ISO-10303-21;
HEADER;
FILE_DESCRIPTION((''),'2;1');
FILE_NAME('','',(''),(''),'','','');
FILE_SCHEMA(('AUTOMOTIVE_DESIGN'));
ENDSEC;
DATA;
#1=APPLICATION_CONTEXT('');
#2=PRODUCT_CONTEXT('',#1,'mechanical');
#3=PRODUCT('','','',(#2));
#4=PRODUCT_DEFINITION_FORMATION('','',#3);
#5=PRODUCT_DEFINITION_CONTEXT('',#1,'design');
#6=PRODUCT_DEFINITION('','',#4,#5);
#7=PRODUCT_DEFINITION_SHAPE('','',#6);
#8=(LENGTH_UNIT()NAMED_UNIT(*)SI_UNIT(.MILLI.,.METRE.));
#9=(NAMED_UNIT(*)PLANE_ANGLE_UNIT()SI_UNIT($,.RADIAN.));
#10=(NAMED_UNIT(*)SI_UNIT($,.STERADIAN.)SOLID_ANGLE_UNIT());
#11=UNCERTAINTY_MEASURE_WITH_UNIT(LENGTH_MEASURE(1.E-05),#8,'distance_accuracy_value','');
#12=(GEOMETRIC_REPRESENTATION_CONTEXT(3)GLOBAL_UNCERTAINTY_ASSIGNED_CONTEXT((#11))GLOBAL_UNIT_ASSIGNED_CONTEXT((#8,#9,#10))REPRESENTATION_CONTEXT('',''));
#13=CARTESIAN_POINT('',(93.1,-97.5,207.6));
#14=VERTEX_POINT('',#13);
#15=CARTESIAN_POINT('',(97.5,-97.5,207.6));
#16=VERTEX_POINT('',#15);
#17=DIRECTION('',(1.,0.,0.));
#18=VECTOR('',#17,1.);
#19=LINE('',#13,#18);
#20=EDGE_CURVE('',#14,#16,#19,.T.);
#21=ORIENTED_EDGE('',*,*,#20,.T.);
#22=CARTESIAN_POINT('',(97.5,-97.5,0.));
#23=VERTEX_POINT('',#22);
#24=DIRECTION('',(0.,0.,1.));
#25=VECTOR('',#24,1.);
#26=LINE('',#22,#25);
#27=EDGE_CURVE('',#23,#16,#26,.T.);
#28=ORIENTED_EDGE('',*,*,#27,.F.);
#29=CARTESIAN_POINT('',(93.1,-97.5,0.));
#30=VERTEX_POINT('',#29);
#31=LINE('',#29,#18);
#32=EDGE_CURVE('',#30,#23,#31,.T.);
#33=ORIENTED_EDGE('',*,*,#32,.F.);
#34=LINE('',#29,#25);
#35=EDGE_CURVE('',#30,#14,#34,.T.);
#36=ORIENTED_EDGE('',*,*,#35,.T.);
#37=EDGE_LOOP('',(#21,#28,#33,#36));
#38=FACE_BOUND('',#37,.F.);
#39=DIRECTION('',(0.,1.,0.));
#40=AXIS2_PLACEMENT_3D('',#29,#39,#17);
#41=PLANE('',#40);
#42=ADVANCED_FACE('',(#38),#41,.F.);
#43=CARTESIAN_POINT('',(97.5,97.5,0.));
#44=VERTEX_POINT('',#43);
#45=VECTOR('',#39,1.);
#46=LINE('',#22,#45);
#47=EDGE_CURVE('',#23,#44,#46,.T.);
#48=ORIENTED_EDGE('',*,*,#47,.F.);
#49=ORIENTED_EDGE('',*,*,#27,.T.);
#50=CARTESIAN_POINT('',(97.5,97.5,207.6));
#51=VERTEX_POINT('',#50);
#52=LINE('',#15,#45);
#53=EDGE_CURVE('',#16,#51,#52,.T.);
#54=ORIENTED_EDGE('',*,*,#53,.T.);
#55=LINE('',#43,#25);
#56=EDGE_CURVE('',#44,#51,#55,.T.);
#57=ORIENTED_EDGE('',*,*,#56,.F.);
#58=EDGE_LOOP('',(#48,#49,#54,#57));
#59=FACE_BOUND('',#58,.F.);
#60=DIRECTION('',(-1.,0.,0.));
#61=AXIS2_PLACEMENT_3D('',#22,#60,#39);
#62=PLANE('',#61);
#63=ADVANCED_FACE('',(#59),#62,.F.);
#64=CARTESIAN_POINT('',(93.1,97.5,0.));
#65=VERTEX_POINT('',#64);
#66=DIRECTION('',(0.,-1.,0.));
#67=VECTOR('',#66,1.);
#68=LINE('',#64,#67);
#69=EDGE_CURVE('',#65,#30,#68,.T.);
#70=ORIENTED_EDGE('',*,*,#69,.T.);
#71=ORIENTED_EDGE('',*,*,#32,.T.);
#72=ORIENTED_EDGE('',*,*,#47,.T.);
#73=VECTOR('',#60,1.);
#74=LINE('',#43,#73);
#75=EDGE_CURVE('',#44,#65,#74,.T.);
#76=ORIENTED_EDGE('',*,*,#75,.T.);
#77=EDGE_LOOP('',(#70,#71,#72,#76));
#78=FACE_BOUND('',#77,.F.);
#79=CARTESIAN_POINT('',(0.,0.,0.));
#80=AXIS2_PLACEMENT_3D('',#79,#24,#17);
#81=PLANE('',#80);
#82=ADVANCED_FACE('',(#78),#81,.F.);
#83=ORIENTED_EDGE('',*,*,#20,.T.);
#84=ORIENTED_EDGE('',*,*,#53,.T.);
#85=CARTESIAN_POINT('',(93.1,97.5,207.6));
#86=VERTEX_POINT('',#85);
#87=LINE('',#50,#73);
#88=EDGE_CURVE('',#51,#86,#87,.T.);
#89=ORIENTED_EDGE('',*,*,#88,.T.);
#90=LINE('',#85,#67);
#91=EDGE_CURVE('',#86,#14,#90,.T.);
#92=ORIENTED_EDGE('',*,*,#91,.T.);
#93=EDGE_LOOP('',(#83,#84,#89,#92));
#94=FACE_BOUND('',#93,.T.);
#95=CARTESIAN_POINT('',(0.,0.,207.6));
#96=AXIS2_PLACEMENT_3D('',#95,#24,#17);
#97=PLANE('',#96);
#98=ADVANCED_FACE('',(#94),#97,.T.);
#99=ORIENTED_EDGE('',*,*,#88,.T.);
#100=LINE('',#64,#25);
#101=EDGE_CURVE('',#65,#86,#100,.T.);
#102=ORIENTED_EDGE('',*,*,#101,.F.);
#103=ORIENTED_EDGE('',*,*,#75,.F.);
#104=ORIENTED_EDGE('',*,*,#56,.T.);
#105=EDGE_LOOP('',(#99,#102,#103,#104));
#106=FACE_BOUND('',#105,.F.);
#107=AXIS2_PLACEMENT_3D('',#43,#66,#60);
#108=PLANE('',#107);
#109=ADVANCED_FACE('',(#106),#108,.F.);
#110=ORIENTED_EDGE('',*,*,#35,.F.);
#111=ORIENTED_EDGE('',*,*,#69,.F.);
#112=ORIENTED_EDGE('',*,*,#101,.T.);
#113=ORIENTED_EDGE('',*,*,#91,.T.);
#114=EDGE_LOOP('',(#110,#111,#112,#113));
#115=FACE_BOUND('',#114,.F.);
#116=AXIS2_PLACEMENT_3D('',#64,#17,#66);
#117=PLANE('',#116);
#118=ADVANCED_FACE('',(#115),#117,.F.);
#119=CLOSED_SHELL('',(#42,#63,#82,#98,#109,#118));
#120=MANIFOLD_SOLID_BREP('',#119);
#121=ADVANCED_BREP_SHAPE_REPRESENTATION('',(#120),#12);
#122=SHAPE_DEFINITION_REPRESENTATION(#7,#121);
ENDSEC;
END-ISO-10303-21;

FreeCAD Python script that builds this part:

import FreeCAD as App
import Part
import Sketcher


def add_polygon(sketch, points):
    """Adds a closed chain of lines whose ends are joined by coincident constraints."""
    first, n = sketch.GeometryCount, len(points)
    for a, b in zip(points, points[1:] + points[:1]):
        sketch.addGeometry(Part.LineSegment(App.Vector(*a, 0), App.Vector(*b, 0)), False)
    for i in range(n):
        sketch.addConstraint(Sketcher.Constraint("Coincident", first + i, 2, first + (i + 1) % n, 1))

doc = App.newDocument("Part")
body = doc.addObject("PartDesign::Body", "Body")

# Sketch on XY plane
sketch1 = doc.addObject("Sketcher::SketchObject", "Sketch")
body.addObject(sketch1)
sketch1.AttachmentSupport = (doc.XY_Plane, [""])
sketch1.MapMode = "FlatFace"
add_polygon(sketch1, [(93.1, 97.5), (93.1, -97.5), (97.5, -97.5), (97.5, 97.5)])  # lines 0-3
sketch1.addConstraint([
    Sketcher.Constraint("Vertical", 0),
    Sketcher.Constraint("Horizontal", 1),
    Sketcher.Constraint("Vertical", 2),
    Sketcher.Constraint("Horizontal", 3),
    Sketcher.Constraint("DistanceY", 0, 2, 0, 1, 195.0),
    Sketcher.Constraint("DistanceX", 1, 1, 1, 2, 4.4),
    Sketcher.Constraint("DistanceX", -1, 1, 0, 2, 93.1),
    Sketcher.Constraint("DistanceY", 0, 2, -1, 1, 97.5),
])
pad1 = doc.addObject("PartDesign::Pad", "Pad")
body.addObject(pad1)
pad1.Profile = sketch1
pad1.Length = 207.6

doc.recompute()
